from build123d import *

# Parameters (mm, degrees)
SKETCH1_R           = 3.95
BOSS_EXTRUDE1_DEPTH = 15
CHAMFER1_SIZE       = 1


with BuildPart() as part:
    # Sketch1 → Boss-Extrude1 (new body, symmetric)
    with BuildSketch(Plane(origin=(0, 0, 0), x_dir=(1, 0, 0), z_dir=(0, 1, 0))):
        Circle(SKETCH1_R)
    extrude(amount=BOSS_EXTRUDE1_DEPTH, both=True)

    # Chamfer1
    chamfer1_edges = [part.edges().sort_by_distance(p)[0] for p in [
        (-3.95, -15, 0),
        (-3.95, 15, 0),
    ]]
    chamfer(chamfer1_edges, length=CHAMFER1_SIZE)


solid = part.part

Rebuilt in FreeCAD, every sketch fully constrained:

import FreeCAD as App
import Part
import Sketcher


def edges_at(feature, points):
    """Names of the edges that pass closest to the given points."""
    edges = feature.Shape.Edges
    near = lambda p: min(range(len(edges)), key=lambda i: edges[i].distToShape(Part.Vertex(*p))[0])
    return sorted({f"Edge{near(p) + 1}" for p in points})

doc = App.newDocument("Part")
body = doc.addObject("PartDesign::Body", "Body")

# Sketch on XZ plane
sketch1 = body.newObject("Sketcher::SketchObject", "Sketch")
sketch1.AttachmentSupport = (doc.getObject("XZ_Plane"), [""])
sketch1.MapMode = "FlatFace"
sketch1.addGeometry(Part.Circle(App.Vector(0, 0, 0), App.Vector(0, 0, 1), 4), False)
sketch1.addConstraint([
    Sketcher.Constraint("Coincident", 0, 3, -1, 1),
    Sketcher.Constraint("Diameter", 0, 7.9),
])
pad1 = body.newObject("PartDesign::Pad", "Pad")
pad1.Profile = sketch1
pad1.Length = 30
pad1.Midplane = True
doc.recompute()

chamfer = body.newObject("PartDesign::Chamfer", "Chamfer")
chamfer.Base = (pad1, edges_at(pad1, [(-3.95, -15, 0), (-3.95, 15, 0)]))
chamfer.Size = 1

doc.recompute()
